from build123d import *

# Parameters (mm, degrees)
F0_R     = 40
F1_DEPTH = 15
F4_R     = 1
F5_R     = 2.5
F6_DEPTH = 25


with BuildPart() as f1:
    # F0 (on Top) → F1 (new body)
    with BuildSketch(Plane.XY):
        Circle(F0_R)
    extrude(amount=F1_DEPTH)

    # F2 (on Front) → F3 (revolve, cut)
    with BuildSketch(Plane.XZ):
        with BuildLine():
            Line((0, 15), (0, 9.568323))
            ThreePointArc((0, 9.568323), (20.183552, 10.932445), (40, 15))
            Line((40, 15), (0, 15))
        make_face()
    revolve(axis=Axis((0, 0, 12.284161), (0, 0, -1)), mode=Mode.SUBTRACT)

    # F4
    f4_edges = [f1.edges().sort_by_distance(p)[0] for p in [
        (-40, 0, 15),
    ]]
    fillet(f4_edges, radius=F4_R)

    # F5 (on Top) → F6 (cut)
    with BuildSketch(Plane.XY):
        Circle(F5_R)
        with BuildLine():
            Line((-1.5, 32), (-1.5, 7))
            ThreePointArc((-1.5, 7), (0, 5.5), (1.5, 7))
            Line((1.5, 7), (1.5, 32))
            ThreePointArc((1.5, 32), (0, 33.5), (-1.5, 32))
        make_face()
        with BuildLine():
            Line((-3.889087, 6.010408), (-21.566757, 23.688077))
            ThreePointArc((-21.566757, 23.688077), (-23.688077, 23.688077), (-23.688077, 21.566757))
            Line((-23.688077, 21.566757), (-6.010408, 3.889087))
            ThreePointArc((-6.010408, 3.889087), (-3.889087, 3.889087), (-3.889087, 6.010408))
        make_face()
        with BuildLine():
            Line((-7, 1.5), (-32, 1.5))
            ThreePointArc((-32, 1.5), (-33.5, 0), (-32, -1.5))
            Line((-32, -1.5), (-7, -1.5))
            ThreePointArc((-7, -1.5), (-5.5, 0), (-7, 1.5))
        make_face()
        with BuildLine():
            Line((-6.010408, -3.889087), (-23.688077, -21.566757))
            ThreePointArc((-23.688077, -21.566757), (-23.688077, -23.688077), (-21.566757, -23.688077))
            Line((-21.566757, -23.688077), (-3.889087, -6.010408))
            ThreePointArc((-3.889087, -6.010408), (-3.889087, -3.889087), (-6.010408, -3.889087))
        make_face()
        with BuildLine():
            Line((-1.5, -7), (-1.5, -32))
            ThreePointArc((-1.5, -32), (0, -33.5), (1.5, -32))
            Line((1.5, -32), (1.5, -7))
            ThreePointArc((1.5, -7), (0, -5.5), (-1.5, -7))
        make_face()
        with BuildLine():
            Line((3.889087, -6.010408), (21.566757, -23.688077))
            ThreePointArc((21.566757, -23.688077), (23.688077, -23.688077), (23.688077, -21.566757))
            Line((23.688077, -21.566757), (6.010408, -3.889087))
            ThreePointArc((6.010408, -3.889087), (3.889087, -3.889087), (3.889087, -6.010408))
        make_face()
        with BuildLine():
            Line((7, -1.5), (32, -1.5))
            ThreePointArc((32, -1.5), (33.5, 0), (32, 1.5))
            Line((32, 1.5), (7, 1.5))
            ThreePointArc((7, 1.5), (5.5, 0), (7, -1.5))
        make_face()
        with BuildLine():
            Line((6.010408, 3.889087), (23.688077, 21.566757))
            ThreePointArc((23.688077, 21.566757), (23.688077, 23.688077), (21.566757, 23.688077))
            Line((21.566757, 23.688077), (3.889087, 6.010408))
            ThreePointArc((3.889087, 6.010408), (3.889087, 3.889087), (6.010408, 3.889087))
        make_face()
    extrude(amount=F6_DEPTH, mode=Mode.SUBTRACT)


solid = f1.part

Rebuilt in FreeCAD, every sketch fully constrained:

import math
import FreeCAD as App
import Part
import Sketcher
from FreeCAD import Vector
Q = App.Units.Quantity


def edges_at(feature, points):
    """Names of the edges that pass closest to the given points."""
    edges = feature.Shape.Edges
    near = lambda p: min(range(len(edges)), key=lambda i: edges[i].distToShape(Part.Vertex(*p))[0])
    return sorted({f"Edge{near(p) + 1}" for p in points})

doc = App.newDocument("Part")
params = doc.addObject("Spreadsheet::Sheet", "Params")
for row, (alias, value) in enumerate([
    ("sketch1_diameter", "80 mm"),
    ("pad1_length", "15 mm"),
    ("sketch2_width", "40 mm"),
    ("groove_angle", "360 deg"),
    ("fillet_radius", "1 mm"),
    ("sketch3_diameter", "5 mm"),
    ("sketch3_radius", "1.5 mm"),
    ("sketch3_width", "25 mm"),
    ("sketch3_length", "25 mm"),
    ("pocket1_length", "25 mm"),
], start=1):
    params.set(f"A{row}", alias)
    params.set(f"B{row}", "=" + value)
    params.setAlias(f"B{row}", alias)

body = doc.addObject("PartDesign::Body", "Body")

# Sketch on XY plane
sketch1 = body.newObject("Sketcher::SketchObject", "Sketch")
sketch1.AttachmentSupport = (doc.getObject("XY_Plane"), [""])
sketch1.MapMode = "FlatFace"
sketch1.addGeometry(Part.Circle(Vector(0, 0, 0), Vector(0, 0, 1), 40), False)
sketch1.addConstraint([
    Sketcher.Constraint("Coincident", 0, 3, -1, 1),
    Sketcher.Constraint("Diameter", 0, Q("80 mm")),
])
sketch1.setExpression("Constraints[1]", "Params.sketch1_diameter")
pad1 = body.newObject("PartDesign::Pad", "Pad")
pad1.Profile = sketch1
pad1.setExpression("Length", "Params.pad1_length")

# Sketch on XZ plane
sketch2 = body.newObject("Sketcher::SketchObject", "Sketch001")
sketch2.AttachmentSupport = (doc.getObject("XZ_Plane"), [""])
sketch2.MapMode = "FlatFace"
sketch2.addGeometry([
    Part.LineSegment(Vector(0, 15, 0), Vector(0, 10, 0)),
    Part.ArcOfCircle(Part.Circle(Vector(0, 160, 0), Vector(0, 0, 1), 150), math.radians(-90), math.radians(-74.53)),
    Part.LineSegment(Vector(40, 15, 0), Vector(0, 15, 0)),
], False)
sketch2.addConstraint([
    Sketcher.Constraint("Coincident", 0, 2, 1, 1),
    Sketcher.Constraint("Coincident", 1, 2, 2, 1),
    Sketcher.Constraint("Coincident", 2, 2, 0, 1),
    Sketcher.Constraint("Vertical", 0),
    Sketcher.Constraint("Horizontal", 2),
    Sketcher.Constraint("PointOnObject", 1, 3, -2),
    Sketcher.Constraint("PointOnObject", 0, 2, -2),
    Sketcher.Constraint("DistanceX", 2, 2, 2, 1, Q("40 mm")),
    Sketcher.Constraint("DistanceY", -1, 1, 1, 2, Q("15 mm")),
    Sketcher.Constraint("Radius", 1, Q("150.000003 mm")),
])
sketch2.setExpression("Constraints[7]", "Params.sketch2_width")
groove = body.newObject("PartDesign::Groove", "Groove")
groove.Profile = sketch2
groove.ReferenceAxis = (sketch2, ["V_Axis"])
groove.setExpression("Angle", "Params.groove_angle")
doc.recompute()

fillet = body.newObject("PartDesign::Fillet", "Fillet")
fillet.Base = (groove, edges_at(groove, [(-40, 0, 15)]))
fillet.setExpression("Radius", "Params.fillet_radius")

# Sketch on XY plane
sketch3 = body.newObject("Sketcher::SketchObject", "Sketch002")
sketch3.AttachmentSupport = (doc.getObject("XY_Plane"), [""])
sketch3.MapMode = "FlatFace"
sketch3.addGeometry([
    Part.Circle(Vector(0, 0, 0), Vector(0, 0, 1), 2.5),  # 0
    Part.LineSegment(Vector(-1.5, 32, 0), Vector(-1.5, 7, 0)),  # 1
    Part.ArcOfCircle(Part.Circle(Vector(0, 7, 0), Vector(0, 0, 1), 1.5), math.radians(180), math.radians(360)),  # 2
    Part.LineSegment(Vector(1.5, 7, 0), Vector(1.5, 32, 0)),  # 3
    Part.ArcOfCircle(Part.Circle(Vector(0, 32, 0), Vector(0, 0, 1), 1.5), math.radians(0), math.radians(180)),  # 4
    Part.LineSegment(Vector(-3.9, 6, 0), Vector(-21.6, 23.7, 0)),  # 5
    Part.ArcOfCircle(Part.Circle(Vector(-22.6, 22.6, 0), Vector(0, 0, 1), 1.5), math.radians(45), math.radians(225)),  # 6
    Part.LineSegment(Vector(-23.7, 21.6, 0), Vector(-6, 3.9, 0)),  # 7
    Part.ArcOfCircle(Part.Circle(Vector(-4.9, 4.9, 0), Vector(0, 0, 1), 1.5), math.radians(-135), math.radians(45)),  # 8
    Part.LineSegment(Vector(-7, 1.5, 0), Vector(-32, 1.5, 0)),  # 9
    Part.ArcOfCircle(Part.Circle(Vector(-32, 0, 0), Vector(0, 0, 1), 1.5), math.radians(90), math.radians(270)),  # 10
    Part.LineSegment(Vector(-32, -1.5, 0), Vector(-7, -1.5, 0)),  # 11
    Part.ArcOfCircle(Part.Circle(Vector(-7, 0, 0), Vector(0, 0, 1), 1.5), math.radians(-90), math.radians(90)),  # 12
    Part.LineSegment(Vector(-6, -3.9, 0), Vector(-23.7, -21.6, 0)),  # 13
    Part.ArcOfCircle(Part.Circle(Vector(-22.6, -22.6, 0), Vector(0, 0, 1), 1.5), math.radians(135), math.radians(315)),  # 14
    Part.LineSegment(Vector(-21.6, -23.7, 0), Vector(-3.9, -6, 0)),  # 15
    Part.ArcOfCircle(Part.Circle(Vector(-4.9, -4.9, 0), Vector(0, 0, 1), 1.5), math.radians(-45), math.radians(135)),  # 16
    Part.LineSegment(Vector(-1.5, -7, 0), Vector(-1.5, -32, 0)),  # 17
    Part.ArcOfCircle(Part.Circle(Vector(0, -32, 0), Vector(0, 0, 1), 1.5), math.radians(180), math.radians(360)),  # 18
    Part.LineSegment(Vector(1.5, -32, 0), Vector(1.5, -7, 0)),  # 19
    Part.ArcOfCircle(Part.Circle(Vector(0, -7, 0), Vector(0, 0, 1), 1.5), math.radians(0), math.radians(180)),  # 20
    Part.LineSegment(Vector(3.9, -6, 0), Vector(21.6, -23.7, 0)),  # 21
    Part.ArcOfCircle(Part.Circle(Vector(22.6, -22.6, 0), Vector(0, 0, 1), 1.5), math.radians(-135), math.radians(45)),  # 22
    Part.LineSegment(Vector(23.7, -21.6, 0), Vector(6, -3.9, 0)),  # 23
    Part.ArcOfCircle(Part.Circle(Vector(4.9, -4.9, 0), Vector(0, 0, 1), 1.5), math.radians(45), math.radians(225)),  # 24
    Part.LineSegment(Vector(7, -1.5, 0), Vector(32, -1.5, 0)),  # 25
    Part.ArcOfCircle(Part.Circle(Vector(32, 0, 0), Vector(0, 0, 1), 1.5), math.radians(-90), math.radians(90)),  # 26
    Part.LineSegment(Vector(32, 1.5, 0), Vector(7, 1.5, 0)),  # 27
    Part.ArcOfCircle(Part.Circle(Vector(7, 0, 0), Vector(0, 0, 1), 1.5), math.radians(90), math.radians(270)),  # 28
    Part.LineSegment(Vector(6, 3.9, 0), Vector(23.7, 21.6, 0)),  # 29
    Part.ArcOfCircle(Part.Circle(Vector(22.6, 22.6, 0), Vector(0, 0, 1), 1.5), math.radians(-45), math.radians(135)),  # 30
    Part.LineSegment(Vector(21.6, 23.7, 0), Vector(3.9, 6, 0)),  # 31
    Part.ArcOfCircle(Part.Circle(Vector(4.9, 4.9, 0), Vector(0, 0, 1), 1.5), math.radians(135), math.radians(315)),  # 32
], False)
sketch3.addConstraint([
    Sketcher.Constraint("Tangent", 1, 2, 2, 1),
    Sketcher.Constraint("Tangent", 2, 2, 3, 1),
    Sketcher.Constraint("Tangent", 3, 2, 4, 1),
    Sketcher.Constraint("Tangent", 4, 2, 1, 1),
    Sketcher.Constraint("Tangent", 5, 2, 6, 1),
    Sketcher.Constraint("Tangent", 6, 2, 7, 1),
    Sketcher.Constraint("Tangent", 7, 2, 8, 1),
    Sketcher.Constraint("Tangent", 8, 2, 5, 1),
    Sketcher.Constraint("Tangent", 9, 2, 10, 1),
    Sketcher.Constraint("Tangent", 10, 2, 11, 1),
    Sketcher.Constraint("Tangent", 11, 2, 12, 1),
    Sketcher.Constraint("Tangent", 12, 2, 9, 1),
    Sketcher.Constraint("Tangent", 13, 2, 14, 1),
    Sketcher.Constraint("Tangent", 14, 2, 15, 1),
    Sketcher.Constraint("Tangent", 15, 2, 16, 1),
    Sketcher.Constraint("Tangent", 16, 2, 13, 1),
    Sketcher.Constraint("Tangent", 17, 2, 18, 1),
    Sketcher.Constraint("Tangent", 18, 2, 19, 1),
    Sketcher.Constraint("Tangent", 19, 2, 20, 1),
    Sketcher.Constraint("Tangent", 20, 2, 17, 1),
    Sketcher.Constraint("Tangent", 21, 2, 22, 1),
    Sketcher.Constraint("Tangent", 22, 2, 23, 1),
    Sketcher.Constraint("Tangent", 23, 2, 24, 1),
    Sketcher.Constraint("Tangent", 24, 2, 21, 1),
    Sketcher.Constraint("Tangent", 25, 2, 26, 1),
    Sketcher.Constraint("Tangent", 26, 2, 27, 1),
    Sketcher.Constraint("Tangent", 27, 2, 28, 1),
    Sketcher.Constraint("Tangent", 28, 2, 25, 1),
    Sketcher.Constraint("Tangent", 29, 2, 30, 1),
    Sketcher.Constraint("Tangent", 30, 2, 31, 1),
    Sketcher.Constraint("Tangent", 31, 2, 32, 1),
    Sketcher.Constraint("Tangent", 32, 2, 29, 1),
    Sketcher.Constraint("Vertical", 1),
    Sketcher.Constraint("Vertical", 3),
    Sketcher.Constraint("Horizontal", 9),
    Sketcher.Constraint("Horizontal", 11),
    Sketcher.Constraint("Vertical", 17),
    Sketcher.Constraint("Vertical", 19),
    Sketcher.Constraint("Horizontal", 25),
    Sketcher.Constraint("Horizontal", 27),
    Sketcher.Constraint("Coincident", 0, 3, -1, 1),
    Sketcher.Constraint("Equal", 4, 6),
    Sketcher.Constraint("Equal", 6, 8),
    Sketcher.Constraint("Equal", 8, 10),
    Sketcher.Constraint("Equal", 12, 14),
    Sketcher.Constraint("Equal", 14, 16),
    Sketcher.Constraint("Equal", 16, 18),
    Sketcher.Constraint("Equal", 20, 22),
    Sketcher.Constraint("Equal", 22, 24),
    Sketcher.Constraint("Equal", 24, 26),
    Sketcher.Constraint("Equal", 28, 30),
    Sketcher.Constraint("Equal", 30, 32),
    Sketcher.Constraint("Symmetric", 4, 3, 18, 3, -1, 1),
    Sketcher.Constraint("Symmetric", 6, 3, 22, 3, -1, 1),
    Sketcher.Constraint("Symmetric", 8, 3, 24, 3, -1, 1),
    Sketcher.Constraint("Symmetric", 10, 3, 26, 3, -1, 1),
    Sketcher.Constraint("Symmetric", 14, 3, 30, 3, -1, 1),
    Sketcher.Constraint("Symmetric", 16, 3, 32, 3, -1, 1),
    Sketcher.Constraint("Symmetric", 14, 3, 22, 3, -2),
    Sketcher.Constraint("Symmetric", 16, 3, 24, 3, -2),
    Sketcher.Constraint("Symmetric", 12, 3, 28, 3, -2),
    Sketcher.Constraint("Symmetric", 2, 3, 20, 3, -1),
    Sketcher.Constraint("Perpendicular", 7, 13),
    Sketcher.Constraint("Equal", 27, 1),
    Sketcher.Constraint("Diameter", 0, Q("5 mm")),
    Sketcher.Constraint("Radius", 2, Q("1.5 mm")),
    Sketcher.Constraint("DistanceX", 9, 2, 9, 1, Q("25 mm")),
    Sketcher.Constraint("Distance", 5, Q("25 mm")),
    Sketcher.Constraint("DistanceY", -1, 1, 2, 3, Q("7 mm")),
    Sketcher.Constraint("DistanceX", 10, 3, -1, 1, Q("32 mm")),
    Sketcher.Constraint("DistanceX", 6, 3, -1, 1, Q("22.627417 mm")),
    Sketcher.Constraint("DistanceY", -1, 1, 6, 3, Q("22.627417 mm")),
])
sketch3.setExpression("Constraints[64]", "Params.sketch3_diameter")
sketch3.setExpression("Constraints[65]", "Params.sketch3_radius")
sketch3.setExpression("Constraints[66]", "Params.sketch3_width")
sketch3.setExpression("Constraints[67]", "Params.sketch3_length")
pocket1 = body.newObject("PartDesign::Pocket", "Pocket")
pocket1.Profile = sketch3
pocket1.setExpression("Length", "Params.pocket1_length")
pocket1.Reversed = True

doc.recompute()
